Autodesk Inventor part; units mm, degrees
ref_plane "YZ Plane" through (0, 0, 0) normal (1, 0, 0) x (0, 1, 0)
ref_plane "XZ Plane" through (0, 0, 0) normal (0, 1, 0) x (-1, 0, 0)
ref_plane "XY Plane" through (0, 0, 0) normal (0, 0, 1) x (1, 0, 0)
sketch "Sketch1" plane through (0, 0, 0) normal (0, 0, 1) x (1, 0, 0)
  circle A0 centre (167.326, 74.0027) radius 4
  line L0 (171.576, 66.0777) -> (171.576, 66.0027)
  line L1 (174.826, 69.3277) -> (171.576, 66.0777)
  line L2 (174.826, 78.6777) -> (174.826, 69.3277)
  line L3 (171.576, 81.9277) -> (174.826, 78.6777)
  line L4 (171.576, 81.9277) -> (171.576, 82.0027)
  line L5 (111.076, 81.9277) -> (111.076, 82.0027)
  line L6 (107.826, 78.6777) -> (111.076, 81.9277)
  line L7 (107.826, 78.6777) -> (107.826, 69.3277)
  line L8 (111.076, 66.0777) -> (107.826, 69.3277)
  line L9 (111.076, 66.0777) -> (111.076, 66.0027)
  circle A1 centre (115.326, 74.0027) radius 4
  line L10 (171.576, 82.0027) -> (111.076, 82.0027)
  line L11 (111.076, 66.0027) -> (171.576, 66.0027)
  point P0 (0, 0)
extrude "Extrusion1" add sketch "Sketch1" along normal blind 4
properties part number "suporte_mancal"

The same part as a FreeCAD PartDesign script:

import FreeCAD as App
import Part
import Sketcher


def add_polygon(sketch, points):
    """Adds a closed chain of lines whose ends are joined by coincident constraints."""
    first, n = sketch.GeometryCount, len(points)
    for a, b in zip(points, points[1:] + points[:1]):
        sketch.addGeometry(Part.LineSegment(App.Vector(*a, 0), App.Vector(*b, 0)), False)
    for i in range(n):
        sketch.addConstraint(Sketcher.Constraint("Coincident", first + i, 2, first + (i + 1) % n, 1))

doc = App.newDocument("Part")
body = doc.addObject("PartDesign::Body", "Body")

# Sketch on XY plane
sketch1 = doc.addObject("Sketcher::SketchObject", "Sketch")
body.addObject(sketch1)
sketch1.AttachmentSupport = (doc.XY_Plane, [""])
sketch1.MapMode = "FlatFace"
add_polygon(sketch1, [(171.58, 66), (171.58, 66.08), (174.83, 69.33), (174.83, 78.68), (171.58, 81.93), (171.58, 82), (111.08, 82), (111.08, 81.93), (107.83, 78.68), (107.83, 69.33), (111.08, 66.08), (111.08, 66)])  # lines 0-11
sketch1.addGeometry(Part.Circle(App.Vector(115.33, 74, 0), App.Vector(0, 0, 1), 4), False)  # 12
sketch1.addGeometry(Part.Circle(App.Vector(167.33, 74, 0), App.Vector(0, 0, 1), 4), False)  # 13
sketch1.addConstraint(Sketcher.Constraint("Vertical", 0))
sketch1.addConstraint(Sketcher.Constraint("Vertical", 2))
sketch1.addConstraint(Sketcher.Constraint("Vertical", 4))
sketch1.addConstraint(Sketcher.Constraint("Horizontal", 5))
sketch1.addConstraint(Sketcher.Constraint("Vertical", 6))
sketch1.addConstraint(Sketcher.Constraint("Vertical", 8))
sketch1.addConstraint(Sketcher.Constraint("Vertical", 10))
sketch1.addConstraint(Sketcher.Constraint("Horizontal", 11))
sketch1.addConstraint(Sketcher.Constraint("Equal", 12, 13))
sketch1.addConstraint(Sketcher.Constraint("Perpendicular", 1, 3))
sketch1.addConstraint(Sketcher.Constraint("Perpendicular", 3, 7))
sketch1.addConstraint(Sketcher.Constraint("Perpendicular", 7, 9))
sketch1.addConstraint(Sketcher.Constraint("Horizontal", 12, 3, 13, 3))
sketch1.addConstraint(Sketcher.Constraint("Horizontal", 3, 2, 6, 2))
sketch1.addConstraint(Sketcher.Constraint("Horizontal", 2, 2, 7, 2))
sketch1.addConstraint(Sketcher.Constraint("Horizontal", 1, 2, 8, 2))
sketch1.addConstraint(Sketcher.Constraint("Horizontal", 0, 2, 9, 2))
sketch1.addConstraint(Sketcher.Constraint("Vertical", 0, 2, 3, 2))
sketch1.addConstraint(Sketcher.Constraint("Vertical", 6, 2, 9, 2))
sketch1.addConstraint(Sketcher.Constraint("Equal", 0, 4))
sketch1.addConstraint(Sketcher.Constraint("Diameter", 12, 8.0))
sketch1.addConstraint(Sketcher.Constraint("DistanceX", 5, 2, 5, 1, 60.5))
sketch1.addConstraint(Sketcher.Constraint("DistanceX", 12, 3, 13, 3, 52.0))
sketch1.addConstraint(Sketcher.Constraint("DistanceY", 13, 3, 4, 2, 8.0))
sketch1.addConstraint(Sketcher.Constraint("DistanceY", 10, 2, 12, 3, 8.0))
sketch1.addConstraint(Sketcher.Constraint("DistanceY", 2, 1, 2, 2, 9.35))
sketch1.addConstraint(Sketcher.Constraint("DistanceX", 13, 3, 1, 2, 7.5))
sketch1.addConstraint(Sketcher.Constraint("DistanceY", 0, 2, 2, 2, 12.6))
sketch1.addConstraint(Sketcher.Constraint("DistanceX", -1, 1, 12, 3, 115.326))
sketch1.addConstraint(Sketcher.Constraint("DistanceY", -1, 1, 12, 3, 74.0027))
pad1 = doc.addObject("PartDesign::Pad", "Pad")
body.addObject(pad1)
pad1.Profile = sketch1
pad1.Length = 4

doc.recompute()
